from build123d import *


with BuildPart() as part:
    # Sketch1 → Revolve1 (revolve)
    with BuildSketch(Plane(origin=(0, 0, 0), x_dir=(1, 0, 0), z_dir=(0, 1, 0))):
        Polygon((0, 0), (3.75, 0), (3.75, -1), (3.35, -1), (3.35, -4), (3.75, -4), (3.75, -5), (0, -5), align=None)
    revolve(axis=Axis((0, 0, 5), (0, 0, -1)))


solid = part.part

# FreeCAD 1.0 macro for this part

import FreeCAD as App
import Part
import Sketcher
from FreeCAD import Vector
Q = App.Units.Quantity

doc = App.newDocument("Part")
body = doc.addObject("PartDesign::Body", "Body")

# Sketch on XZ plane
sketch1 = body.newObject("Sketcher::SketchObject", "Sketch")
sketch1.AttachmentSupport = (doc.getObject("XZ_Plane"), [""])
sketch1.MapMode = "FlatFace"
sketch1.addGeometry(Part.LineSegment(Vector(3.75, 0, 0), Vector(0, 0, 0)), False)
sketch1.addGeometry(Part.LineSegment(Vector(0, 0, 0), Vector(0, 5, 0)), False)
sketch1.addGeometry(Part.LineSegment(Vector(0, 5, 0), Vector(3.75, 5, 0)), False)
sketch1.addGeometry(Part.LineSegment(Vector(3.75, 5, 0), Vector(3.75, 4, 0)), False)
sketch1.addGeometry(Part.LineSegment(Vector(3.75, 4, 0), Vector(3.35, 4, 0)), False)
sketch1.addGeometry(Part.LineSegment(Vector(3.35, 4, 0), Vector(3.35, 1, 0)), False)
sketch1.addGeometry(Part.LineSegment(Vector(3.35, 1, 0), Vector(3.75, 1, 0)), False)
sketch1.addGeometry(Part.LineSegment(Vector(3.75, 1, 0), Vector(3.75, 0, 0)), False)
sketch1.addConstraint(Sketcher.Constraint("Coincident", 0, 2, 1, 1))
sketch1.addConstraint(Sketcher.Constraint("Coincident", 1, 2, 2, 1))
sketch1.addConstraint(Sketcher.Constraint("Coincident", 2, 2, 3, 1))
sketch1.addConstraint(Sketcher.Constraint("Coincident", 3, 2, 4, 1))
sketch1.addConstraint(Sketcher.Constraint("Coincident", 4, 2, 5, 1))
sketch1.addConstraint(Sketcher.Constraint("Coincident", 5, 2, 6, 1))
sketch1.addConstraint(Sketcher.Constraint("Coincident", 6, 2, 7, 1))
sketch1.addConstraint(Sketcher.Constraint("Coincident", 7, 2, 0, 1))
sketch1.addConstraint(Sketcher.Constraint("Horizontal", 0))
sketch1.addConstraint(Sketcher.Constraint("Vertical", 1))
sketch1.addConstraint(Sketcher.Constraint("Horizontal", 2))
sketch1.addConstraint(Sketcher.Constraint("Vertical", 3))
sketch1.addConstraint(Sketcher.Constraint("Horizontal", 4))
sketch1.addConstraint(Sketcher.Constraint("Vertical", 5))
sketch1.addConstraint(Sketcher.Constraint("Horizontal", 6))
sketch1.addConstraint(Sketcher.Constraint("Vertical", 7))
sketch1.addConstraint(Sketcher.Constraint("Coincident", 0, 2, -1, 1))
sketch1.addConstraint(Sketcher.Constraint("Vertical", 3, 2, 6, 2))
sketch1.addConstraint(Sketcher.Constraint("Equal", 3, 7))
sketch1.addConstraint(Sketcher.Constraint("DistanceY", 1, 1, 1, 2, Q("5 mm")))
sketch1.addConstraint(Sketcher.Constraint("DistanceY", 3, 2, 3, 1, Q("1 mm")))
sketch1.addConstraint(Sketcher.Constraint("DistanceX", 4, 2, 4, 1, Q("0.4 mm")))
sketch1.addConstraint(Sketcher.Constraint("DistanceX", 0, 2, 0, 1, Q("3.75 mm")))
revolution = body.newObject("PartDesign::Revolution", "Revolution")
revolution.Profile = sketch1
revolution.ReferenceAxis = (sketch1, ["V_Axis"])
revolution.Angle = 360

doc.recompute()
